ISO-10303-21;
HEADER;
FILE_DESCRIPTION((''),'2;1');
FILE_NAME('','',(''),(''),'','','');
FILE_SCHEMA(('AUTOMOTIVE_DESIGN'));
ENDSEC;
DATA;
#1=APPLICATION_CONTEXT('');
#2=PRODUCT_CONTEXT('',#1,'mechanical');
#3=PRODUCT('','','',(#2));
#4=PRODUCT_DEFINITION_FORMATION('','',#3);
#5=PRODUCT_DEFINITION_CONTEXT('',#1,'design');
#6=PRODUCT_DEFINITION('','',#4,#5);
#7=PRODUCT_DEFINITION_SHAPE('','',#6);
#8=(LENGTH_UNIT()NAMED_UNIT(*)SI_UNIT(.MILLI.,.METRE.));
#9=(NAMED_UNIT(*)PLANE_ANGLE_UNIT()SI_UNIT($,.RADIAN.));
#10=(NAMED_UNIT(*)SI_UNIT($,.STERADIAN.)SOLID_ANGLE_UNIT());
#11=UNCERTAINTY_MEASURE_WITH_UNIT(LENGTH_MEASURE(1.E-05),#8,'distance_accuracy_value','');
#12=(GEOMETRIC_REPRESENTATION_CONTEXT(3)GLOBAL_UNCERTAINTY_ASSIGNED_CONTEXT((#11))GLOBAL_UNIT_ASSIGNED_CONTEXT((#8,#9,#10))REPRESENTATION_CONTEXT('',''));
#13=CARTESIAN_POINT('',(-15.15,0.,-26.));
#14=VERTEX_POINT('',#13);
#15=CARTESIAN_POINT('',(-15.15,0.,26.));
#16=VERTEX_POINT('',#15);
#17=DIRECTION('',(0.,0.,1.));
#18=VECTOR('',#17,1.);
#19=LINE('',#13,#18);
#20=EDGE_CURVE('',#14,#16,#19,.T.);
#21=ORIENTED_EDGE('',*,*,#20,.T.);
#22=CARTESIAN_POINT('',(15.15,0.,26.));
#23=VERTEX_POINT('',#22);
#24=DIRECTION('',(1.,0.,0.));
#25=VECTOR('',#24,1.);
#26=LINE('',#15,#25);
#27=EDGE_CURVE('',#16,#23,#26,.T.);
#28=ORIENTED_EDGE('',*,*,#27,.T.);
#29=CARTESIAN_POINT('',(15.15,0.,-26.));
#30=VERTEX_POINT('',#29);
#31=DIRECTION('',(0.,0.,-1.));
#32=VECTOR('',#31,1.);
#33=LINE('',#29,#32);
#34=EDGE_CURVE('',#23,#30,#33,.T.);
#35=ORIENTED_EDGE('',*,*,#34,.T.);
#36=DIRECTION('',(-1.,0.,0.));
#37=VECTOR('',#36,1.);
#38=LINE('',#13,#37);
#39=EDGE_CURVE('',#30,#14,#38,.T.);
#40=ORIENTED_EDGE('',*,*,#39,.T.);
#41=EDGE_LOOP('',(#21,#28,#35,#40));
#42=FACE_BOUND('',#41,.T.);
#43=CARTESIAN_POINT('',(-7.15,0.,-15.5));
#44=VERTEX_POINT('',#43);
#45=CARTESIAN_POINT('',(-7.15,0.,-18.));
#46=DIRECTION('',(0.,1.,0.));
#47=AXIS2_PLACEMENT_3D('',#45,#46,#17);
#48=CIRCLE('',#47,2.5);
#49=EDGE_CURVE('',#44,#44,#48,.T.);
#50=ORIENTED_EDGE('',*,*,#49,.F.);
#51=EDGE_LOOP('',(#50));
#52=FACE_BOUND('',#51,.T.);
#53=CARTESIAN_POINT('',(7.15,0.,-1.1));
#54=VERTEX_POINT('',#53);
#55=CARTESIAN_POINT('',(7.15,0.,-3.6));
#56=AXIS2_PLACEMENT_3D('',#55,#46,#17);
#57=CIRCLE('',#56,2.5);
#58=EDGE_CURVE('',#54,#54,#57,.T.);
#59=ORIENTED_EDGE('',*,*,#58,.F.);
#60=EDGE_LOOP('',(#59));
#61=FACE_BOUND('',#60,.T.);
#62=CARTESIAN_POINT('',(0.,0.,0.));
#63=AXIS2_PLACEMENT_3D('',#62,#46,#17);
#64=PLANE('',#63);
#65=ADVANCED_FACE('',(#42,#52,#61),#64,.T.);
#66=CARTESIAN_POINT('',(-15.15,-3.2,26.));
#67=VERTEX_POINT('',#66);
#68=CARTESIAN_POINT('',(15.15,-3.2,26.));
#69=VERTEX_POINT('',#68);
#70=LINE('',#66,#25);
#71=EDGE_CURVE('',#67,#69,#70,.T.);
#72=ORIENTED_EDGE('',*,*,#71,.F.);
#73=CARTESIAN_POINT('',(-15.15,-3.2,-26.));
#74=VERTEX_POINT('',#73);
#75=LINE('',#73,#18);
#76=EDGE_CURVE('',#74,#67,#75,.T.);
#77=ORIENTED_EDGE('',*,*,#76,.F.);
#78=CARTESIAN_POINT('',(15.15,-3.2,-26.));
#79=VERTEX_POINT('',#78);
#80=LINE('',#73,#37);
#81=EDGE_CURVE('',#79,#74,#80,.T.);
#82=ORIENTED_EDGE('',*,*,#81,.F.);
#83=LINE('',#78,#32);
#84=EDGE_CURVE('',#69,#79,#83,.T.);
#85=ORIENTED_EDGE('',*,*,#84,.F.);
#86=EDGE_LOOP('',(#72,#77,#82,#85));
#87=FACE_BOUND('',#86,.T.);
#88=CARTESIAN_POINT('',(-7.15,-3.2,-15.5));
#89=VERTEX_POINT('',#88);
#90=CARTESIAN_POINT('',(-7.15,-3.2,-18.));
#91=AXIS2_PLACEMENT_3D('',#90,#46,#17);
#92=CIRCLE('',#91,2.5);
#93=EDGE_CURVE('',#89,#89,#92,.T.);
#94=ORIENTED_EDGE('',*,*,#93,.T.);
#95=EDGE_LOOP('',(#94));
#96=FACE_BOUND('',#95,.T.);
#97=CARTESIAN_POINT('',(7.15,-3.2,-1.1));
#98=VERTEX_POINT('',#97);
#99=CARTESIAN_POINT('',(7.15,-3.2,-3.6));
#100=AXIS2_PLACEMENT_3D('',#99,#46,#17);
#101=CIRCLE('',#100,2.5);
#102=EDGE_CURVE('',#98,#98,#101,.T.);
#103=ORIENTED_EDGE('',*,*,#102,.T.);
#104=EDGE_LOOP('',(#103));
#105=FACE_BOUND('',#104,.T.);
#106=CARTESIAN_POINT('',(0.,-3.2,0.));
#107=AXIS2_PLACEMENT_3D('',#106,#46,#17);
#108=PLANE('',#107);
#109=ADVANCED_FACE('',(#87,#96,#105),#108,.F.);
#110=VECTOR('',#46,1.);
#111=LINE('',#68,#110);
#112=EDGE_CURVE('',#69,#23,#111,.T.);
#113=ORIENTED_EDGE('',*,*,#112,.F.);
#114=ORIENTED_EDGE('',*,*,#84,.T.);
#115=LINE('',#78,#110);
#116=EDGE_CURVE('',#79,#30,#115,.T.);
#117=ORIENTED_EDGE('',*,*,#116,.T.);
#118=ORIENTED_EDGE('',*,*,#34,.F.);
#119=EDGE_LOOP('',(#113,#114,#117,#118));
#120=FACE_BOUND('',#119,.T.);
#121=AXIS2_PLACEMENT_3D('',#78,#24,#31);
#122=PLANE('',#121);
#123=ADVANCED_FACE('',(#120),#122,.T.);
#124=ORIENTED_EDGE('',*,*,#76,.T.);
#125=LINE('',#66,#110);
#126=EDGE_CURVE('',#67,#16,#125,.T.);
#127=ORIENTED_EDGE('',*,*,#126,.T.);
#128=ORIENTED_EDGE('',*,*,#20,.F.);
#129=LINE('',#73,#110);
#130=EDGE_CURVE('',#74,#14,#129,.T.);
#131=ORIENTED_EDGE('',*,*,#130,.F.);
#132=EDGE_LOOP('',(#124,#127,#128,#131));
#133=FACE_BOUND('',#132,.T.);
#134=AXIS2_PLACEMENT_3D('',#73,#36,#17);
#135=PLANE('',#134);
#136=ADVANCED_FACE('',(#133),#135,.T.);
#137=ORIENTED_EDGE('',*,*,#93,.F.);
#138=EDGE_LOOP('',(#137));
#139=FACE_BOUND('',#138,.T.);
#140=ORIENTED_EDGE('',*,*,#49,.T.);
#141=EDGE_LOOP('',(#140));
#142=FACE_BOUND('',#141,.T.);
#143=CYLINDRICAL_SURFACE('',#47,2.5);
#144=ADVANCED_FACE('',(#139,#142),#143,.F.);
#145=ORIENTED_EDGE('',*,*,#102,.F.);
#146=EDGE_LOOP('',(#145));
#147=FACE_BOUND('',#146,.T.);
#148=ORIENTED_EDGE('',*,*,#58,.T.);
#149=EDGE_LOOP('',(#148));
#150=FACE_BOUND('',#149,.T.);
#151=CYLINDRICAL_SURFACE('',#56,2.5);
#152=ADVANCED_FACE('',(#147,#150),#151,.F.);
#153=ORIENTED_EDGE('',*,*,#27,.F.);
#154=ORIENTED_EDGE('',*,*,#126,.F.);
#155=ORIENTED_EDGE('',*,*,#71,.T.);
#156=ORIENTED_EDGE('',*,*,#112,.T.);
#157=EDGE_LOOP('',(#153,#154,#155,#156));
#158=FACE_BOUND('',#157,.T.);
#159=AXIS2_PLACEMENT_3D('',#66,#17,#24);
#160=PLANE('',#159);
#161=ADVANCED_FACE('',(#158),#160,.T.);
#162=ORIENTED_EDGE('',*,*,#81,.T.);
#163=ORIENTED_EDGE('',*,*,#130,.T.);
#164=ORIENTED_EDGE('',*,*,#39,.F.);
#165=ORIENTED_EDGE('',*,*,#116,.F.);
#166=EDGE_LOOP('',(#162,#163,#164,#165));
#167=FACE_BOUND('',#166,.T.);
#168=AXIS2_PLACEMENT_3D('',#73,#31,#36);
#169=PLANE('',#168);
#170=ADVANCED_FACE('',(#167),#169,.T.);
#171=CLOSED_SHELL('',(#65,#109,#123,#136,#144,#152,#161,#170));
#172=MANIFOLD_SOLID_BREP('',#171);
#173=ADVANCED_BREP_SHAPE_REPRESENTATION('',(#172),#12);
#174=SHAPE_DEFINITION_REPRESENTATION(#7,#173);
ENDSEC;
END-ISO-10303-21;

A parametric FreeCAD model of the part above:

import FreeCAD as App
import Part
import Sketcher

V = App.Vector
Q = App.Units.Quantity

doc = App.newDocument("Part")
body = doc.addObject("PartDesign::Body", "Body")

# Sketch on XZ plane
sketch1 = doc.addObject("Sketcher::SketchObject", "Sketch")
body.addObject(sketch1)
sketch1.AttachmentSupport = (doc.XZ_Plane, [""])
sketch1.MapMode = "FlatFace"
sketch1.addGeometry(Part.LineSegment(V(-15.15, -26, 0), V(-15.15, 26, 0)), False)
sketch1.addGeometry(Part.LineSegment(V(-15.15, 26, 0), V(15.15, 26, 0)), False)
sketch1.addGeometry(Part.LineSegment(V(15.15, 26, 0), V(15.15, -26, 0)), False)
sketch1.addGeometry(Part.LineSegment(V(15.15, -26, 0), V(-15.15, -26, 0)), False)
sketch1.addConstraint(Sketcher.Constraint("Coincident", 0, 2, 1, 1))
sketch1.addConstraint(Sketcher.Constraint("Coincident", 1, 2, 2, 1))
sketch1.addConstraint(Sketcher.Constraint("Coincident", 2, 2, 3, 1))
sketch1.addConstraint(Sketcher.Constraint("Coincident", 3, 2, 0, 1))
sketch1.addConstraint(Sketcher.Constraint("Vertical", 0))
sketch1.addConstraint(Sketcher.Constraint("Horizontal", 1))
sketch1.addConstraint(Sketcher.Constraint("Vertical", 2))
sketch1.addConstraint(Sketcher.Constraint("Horizontal", 3))
sketch1.addConstraint(Sketcher.Constraint("Symmetric", 0, 2, 2, 2, -1, 1))
sketch1.addConstraint(Sketcher.Constraint("DistanceY", 0, 1, 0, 2, Q("52 mm")))
sketch1.addConstraint(Sketcher.Constraint("DistanceX", 1, 1, 1, 2, Q("30.3 mm")))
pad1 = doc.addObject("PartDesign::Pad", "Pad")
body.addObject(pad1)
pad1.Profile = sketch1
pad1.Length = 3.2

# Sketch on XZ plane
sketch2 = doc.addObject("Sketcher::SketchObject", "Sketch001")
body.addObject(sketch2)
sketch2.AttachmentSupport = (doc.XZ_Plane, [""])
sketch2.MapMode = "FlatFace"
sketch2.addGeometry(Part.Circle(V(-7.15, -18, 0), V(0, 0, 1), 2.5), False)
sketch2.addGeometry(Part.Circle(V(7.15, -3.6, 0), V(0, 0, 1), 2.5), False)
sketch2.addConstraint(Sketcher.Constraint("Equal", 0, 1))
sketch2.addConstraint(Sketcher.Constraint("Diameter", 0, Q("5 mm")))
sketch2.addConstraint(Sketcher.Constraint("DistanceY", 0, 3, -1, 1, Q("18 mm")))
sketch2.addConstraint(Sketcher.Constraint("DistanceY", 1, 3, -1, 1, Q("3.6 mm")))
sketch2.addConstraint(Sketcher.Constraint("DistanceX", 0, 3, 1, 3, Q("14.3 mm")))
sketch2.addConstraint(Sketcher.Constraint("DistanceX", 0, 3, -1, 1, Q("7.15 mm")))
doc.recompute()
hole = doc.addObject("PartDesign::Hole", "Hole")
body.addObject(hole)
hole.Profile = sketch2
hole.ThreadType = "None"
hole.Diameter = 5
hole.DepthType = "ThroughAll"
hole.Reversed = True

doc.recompute()
